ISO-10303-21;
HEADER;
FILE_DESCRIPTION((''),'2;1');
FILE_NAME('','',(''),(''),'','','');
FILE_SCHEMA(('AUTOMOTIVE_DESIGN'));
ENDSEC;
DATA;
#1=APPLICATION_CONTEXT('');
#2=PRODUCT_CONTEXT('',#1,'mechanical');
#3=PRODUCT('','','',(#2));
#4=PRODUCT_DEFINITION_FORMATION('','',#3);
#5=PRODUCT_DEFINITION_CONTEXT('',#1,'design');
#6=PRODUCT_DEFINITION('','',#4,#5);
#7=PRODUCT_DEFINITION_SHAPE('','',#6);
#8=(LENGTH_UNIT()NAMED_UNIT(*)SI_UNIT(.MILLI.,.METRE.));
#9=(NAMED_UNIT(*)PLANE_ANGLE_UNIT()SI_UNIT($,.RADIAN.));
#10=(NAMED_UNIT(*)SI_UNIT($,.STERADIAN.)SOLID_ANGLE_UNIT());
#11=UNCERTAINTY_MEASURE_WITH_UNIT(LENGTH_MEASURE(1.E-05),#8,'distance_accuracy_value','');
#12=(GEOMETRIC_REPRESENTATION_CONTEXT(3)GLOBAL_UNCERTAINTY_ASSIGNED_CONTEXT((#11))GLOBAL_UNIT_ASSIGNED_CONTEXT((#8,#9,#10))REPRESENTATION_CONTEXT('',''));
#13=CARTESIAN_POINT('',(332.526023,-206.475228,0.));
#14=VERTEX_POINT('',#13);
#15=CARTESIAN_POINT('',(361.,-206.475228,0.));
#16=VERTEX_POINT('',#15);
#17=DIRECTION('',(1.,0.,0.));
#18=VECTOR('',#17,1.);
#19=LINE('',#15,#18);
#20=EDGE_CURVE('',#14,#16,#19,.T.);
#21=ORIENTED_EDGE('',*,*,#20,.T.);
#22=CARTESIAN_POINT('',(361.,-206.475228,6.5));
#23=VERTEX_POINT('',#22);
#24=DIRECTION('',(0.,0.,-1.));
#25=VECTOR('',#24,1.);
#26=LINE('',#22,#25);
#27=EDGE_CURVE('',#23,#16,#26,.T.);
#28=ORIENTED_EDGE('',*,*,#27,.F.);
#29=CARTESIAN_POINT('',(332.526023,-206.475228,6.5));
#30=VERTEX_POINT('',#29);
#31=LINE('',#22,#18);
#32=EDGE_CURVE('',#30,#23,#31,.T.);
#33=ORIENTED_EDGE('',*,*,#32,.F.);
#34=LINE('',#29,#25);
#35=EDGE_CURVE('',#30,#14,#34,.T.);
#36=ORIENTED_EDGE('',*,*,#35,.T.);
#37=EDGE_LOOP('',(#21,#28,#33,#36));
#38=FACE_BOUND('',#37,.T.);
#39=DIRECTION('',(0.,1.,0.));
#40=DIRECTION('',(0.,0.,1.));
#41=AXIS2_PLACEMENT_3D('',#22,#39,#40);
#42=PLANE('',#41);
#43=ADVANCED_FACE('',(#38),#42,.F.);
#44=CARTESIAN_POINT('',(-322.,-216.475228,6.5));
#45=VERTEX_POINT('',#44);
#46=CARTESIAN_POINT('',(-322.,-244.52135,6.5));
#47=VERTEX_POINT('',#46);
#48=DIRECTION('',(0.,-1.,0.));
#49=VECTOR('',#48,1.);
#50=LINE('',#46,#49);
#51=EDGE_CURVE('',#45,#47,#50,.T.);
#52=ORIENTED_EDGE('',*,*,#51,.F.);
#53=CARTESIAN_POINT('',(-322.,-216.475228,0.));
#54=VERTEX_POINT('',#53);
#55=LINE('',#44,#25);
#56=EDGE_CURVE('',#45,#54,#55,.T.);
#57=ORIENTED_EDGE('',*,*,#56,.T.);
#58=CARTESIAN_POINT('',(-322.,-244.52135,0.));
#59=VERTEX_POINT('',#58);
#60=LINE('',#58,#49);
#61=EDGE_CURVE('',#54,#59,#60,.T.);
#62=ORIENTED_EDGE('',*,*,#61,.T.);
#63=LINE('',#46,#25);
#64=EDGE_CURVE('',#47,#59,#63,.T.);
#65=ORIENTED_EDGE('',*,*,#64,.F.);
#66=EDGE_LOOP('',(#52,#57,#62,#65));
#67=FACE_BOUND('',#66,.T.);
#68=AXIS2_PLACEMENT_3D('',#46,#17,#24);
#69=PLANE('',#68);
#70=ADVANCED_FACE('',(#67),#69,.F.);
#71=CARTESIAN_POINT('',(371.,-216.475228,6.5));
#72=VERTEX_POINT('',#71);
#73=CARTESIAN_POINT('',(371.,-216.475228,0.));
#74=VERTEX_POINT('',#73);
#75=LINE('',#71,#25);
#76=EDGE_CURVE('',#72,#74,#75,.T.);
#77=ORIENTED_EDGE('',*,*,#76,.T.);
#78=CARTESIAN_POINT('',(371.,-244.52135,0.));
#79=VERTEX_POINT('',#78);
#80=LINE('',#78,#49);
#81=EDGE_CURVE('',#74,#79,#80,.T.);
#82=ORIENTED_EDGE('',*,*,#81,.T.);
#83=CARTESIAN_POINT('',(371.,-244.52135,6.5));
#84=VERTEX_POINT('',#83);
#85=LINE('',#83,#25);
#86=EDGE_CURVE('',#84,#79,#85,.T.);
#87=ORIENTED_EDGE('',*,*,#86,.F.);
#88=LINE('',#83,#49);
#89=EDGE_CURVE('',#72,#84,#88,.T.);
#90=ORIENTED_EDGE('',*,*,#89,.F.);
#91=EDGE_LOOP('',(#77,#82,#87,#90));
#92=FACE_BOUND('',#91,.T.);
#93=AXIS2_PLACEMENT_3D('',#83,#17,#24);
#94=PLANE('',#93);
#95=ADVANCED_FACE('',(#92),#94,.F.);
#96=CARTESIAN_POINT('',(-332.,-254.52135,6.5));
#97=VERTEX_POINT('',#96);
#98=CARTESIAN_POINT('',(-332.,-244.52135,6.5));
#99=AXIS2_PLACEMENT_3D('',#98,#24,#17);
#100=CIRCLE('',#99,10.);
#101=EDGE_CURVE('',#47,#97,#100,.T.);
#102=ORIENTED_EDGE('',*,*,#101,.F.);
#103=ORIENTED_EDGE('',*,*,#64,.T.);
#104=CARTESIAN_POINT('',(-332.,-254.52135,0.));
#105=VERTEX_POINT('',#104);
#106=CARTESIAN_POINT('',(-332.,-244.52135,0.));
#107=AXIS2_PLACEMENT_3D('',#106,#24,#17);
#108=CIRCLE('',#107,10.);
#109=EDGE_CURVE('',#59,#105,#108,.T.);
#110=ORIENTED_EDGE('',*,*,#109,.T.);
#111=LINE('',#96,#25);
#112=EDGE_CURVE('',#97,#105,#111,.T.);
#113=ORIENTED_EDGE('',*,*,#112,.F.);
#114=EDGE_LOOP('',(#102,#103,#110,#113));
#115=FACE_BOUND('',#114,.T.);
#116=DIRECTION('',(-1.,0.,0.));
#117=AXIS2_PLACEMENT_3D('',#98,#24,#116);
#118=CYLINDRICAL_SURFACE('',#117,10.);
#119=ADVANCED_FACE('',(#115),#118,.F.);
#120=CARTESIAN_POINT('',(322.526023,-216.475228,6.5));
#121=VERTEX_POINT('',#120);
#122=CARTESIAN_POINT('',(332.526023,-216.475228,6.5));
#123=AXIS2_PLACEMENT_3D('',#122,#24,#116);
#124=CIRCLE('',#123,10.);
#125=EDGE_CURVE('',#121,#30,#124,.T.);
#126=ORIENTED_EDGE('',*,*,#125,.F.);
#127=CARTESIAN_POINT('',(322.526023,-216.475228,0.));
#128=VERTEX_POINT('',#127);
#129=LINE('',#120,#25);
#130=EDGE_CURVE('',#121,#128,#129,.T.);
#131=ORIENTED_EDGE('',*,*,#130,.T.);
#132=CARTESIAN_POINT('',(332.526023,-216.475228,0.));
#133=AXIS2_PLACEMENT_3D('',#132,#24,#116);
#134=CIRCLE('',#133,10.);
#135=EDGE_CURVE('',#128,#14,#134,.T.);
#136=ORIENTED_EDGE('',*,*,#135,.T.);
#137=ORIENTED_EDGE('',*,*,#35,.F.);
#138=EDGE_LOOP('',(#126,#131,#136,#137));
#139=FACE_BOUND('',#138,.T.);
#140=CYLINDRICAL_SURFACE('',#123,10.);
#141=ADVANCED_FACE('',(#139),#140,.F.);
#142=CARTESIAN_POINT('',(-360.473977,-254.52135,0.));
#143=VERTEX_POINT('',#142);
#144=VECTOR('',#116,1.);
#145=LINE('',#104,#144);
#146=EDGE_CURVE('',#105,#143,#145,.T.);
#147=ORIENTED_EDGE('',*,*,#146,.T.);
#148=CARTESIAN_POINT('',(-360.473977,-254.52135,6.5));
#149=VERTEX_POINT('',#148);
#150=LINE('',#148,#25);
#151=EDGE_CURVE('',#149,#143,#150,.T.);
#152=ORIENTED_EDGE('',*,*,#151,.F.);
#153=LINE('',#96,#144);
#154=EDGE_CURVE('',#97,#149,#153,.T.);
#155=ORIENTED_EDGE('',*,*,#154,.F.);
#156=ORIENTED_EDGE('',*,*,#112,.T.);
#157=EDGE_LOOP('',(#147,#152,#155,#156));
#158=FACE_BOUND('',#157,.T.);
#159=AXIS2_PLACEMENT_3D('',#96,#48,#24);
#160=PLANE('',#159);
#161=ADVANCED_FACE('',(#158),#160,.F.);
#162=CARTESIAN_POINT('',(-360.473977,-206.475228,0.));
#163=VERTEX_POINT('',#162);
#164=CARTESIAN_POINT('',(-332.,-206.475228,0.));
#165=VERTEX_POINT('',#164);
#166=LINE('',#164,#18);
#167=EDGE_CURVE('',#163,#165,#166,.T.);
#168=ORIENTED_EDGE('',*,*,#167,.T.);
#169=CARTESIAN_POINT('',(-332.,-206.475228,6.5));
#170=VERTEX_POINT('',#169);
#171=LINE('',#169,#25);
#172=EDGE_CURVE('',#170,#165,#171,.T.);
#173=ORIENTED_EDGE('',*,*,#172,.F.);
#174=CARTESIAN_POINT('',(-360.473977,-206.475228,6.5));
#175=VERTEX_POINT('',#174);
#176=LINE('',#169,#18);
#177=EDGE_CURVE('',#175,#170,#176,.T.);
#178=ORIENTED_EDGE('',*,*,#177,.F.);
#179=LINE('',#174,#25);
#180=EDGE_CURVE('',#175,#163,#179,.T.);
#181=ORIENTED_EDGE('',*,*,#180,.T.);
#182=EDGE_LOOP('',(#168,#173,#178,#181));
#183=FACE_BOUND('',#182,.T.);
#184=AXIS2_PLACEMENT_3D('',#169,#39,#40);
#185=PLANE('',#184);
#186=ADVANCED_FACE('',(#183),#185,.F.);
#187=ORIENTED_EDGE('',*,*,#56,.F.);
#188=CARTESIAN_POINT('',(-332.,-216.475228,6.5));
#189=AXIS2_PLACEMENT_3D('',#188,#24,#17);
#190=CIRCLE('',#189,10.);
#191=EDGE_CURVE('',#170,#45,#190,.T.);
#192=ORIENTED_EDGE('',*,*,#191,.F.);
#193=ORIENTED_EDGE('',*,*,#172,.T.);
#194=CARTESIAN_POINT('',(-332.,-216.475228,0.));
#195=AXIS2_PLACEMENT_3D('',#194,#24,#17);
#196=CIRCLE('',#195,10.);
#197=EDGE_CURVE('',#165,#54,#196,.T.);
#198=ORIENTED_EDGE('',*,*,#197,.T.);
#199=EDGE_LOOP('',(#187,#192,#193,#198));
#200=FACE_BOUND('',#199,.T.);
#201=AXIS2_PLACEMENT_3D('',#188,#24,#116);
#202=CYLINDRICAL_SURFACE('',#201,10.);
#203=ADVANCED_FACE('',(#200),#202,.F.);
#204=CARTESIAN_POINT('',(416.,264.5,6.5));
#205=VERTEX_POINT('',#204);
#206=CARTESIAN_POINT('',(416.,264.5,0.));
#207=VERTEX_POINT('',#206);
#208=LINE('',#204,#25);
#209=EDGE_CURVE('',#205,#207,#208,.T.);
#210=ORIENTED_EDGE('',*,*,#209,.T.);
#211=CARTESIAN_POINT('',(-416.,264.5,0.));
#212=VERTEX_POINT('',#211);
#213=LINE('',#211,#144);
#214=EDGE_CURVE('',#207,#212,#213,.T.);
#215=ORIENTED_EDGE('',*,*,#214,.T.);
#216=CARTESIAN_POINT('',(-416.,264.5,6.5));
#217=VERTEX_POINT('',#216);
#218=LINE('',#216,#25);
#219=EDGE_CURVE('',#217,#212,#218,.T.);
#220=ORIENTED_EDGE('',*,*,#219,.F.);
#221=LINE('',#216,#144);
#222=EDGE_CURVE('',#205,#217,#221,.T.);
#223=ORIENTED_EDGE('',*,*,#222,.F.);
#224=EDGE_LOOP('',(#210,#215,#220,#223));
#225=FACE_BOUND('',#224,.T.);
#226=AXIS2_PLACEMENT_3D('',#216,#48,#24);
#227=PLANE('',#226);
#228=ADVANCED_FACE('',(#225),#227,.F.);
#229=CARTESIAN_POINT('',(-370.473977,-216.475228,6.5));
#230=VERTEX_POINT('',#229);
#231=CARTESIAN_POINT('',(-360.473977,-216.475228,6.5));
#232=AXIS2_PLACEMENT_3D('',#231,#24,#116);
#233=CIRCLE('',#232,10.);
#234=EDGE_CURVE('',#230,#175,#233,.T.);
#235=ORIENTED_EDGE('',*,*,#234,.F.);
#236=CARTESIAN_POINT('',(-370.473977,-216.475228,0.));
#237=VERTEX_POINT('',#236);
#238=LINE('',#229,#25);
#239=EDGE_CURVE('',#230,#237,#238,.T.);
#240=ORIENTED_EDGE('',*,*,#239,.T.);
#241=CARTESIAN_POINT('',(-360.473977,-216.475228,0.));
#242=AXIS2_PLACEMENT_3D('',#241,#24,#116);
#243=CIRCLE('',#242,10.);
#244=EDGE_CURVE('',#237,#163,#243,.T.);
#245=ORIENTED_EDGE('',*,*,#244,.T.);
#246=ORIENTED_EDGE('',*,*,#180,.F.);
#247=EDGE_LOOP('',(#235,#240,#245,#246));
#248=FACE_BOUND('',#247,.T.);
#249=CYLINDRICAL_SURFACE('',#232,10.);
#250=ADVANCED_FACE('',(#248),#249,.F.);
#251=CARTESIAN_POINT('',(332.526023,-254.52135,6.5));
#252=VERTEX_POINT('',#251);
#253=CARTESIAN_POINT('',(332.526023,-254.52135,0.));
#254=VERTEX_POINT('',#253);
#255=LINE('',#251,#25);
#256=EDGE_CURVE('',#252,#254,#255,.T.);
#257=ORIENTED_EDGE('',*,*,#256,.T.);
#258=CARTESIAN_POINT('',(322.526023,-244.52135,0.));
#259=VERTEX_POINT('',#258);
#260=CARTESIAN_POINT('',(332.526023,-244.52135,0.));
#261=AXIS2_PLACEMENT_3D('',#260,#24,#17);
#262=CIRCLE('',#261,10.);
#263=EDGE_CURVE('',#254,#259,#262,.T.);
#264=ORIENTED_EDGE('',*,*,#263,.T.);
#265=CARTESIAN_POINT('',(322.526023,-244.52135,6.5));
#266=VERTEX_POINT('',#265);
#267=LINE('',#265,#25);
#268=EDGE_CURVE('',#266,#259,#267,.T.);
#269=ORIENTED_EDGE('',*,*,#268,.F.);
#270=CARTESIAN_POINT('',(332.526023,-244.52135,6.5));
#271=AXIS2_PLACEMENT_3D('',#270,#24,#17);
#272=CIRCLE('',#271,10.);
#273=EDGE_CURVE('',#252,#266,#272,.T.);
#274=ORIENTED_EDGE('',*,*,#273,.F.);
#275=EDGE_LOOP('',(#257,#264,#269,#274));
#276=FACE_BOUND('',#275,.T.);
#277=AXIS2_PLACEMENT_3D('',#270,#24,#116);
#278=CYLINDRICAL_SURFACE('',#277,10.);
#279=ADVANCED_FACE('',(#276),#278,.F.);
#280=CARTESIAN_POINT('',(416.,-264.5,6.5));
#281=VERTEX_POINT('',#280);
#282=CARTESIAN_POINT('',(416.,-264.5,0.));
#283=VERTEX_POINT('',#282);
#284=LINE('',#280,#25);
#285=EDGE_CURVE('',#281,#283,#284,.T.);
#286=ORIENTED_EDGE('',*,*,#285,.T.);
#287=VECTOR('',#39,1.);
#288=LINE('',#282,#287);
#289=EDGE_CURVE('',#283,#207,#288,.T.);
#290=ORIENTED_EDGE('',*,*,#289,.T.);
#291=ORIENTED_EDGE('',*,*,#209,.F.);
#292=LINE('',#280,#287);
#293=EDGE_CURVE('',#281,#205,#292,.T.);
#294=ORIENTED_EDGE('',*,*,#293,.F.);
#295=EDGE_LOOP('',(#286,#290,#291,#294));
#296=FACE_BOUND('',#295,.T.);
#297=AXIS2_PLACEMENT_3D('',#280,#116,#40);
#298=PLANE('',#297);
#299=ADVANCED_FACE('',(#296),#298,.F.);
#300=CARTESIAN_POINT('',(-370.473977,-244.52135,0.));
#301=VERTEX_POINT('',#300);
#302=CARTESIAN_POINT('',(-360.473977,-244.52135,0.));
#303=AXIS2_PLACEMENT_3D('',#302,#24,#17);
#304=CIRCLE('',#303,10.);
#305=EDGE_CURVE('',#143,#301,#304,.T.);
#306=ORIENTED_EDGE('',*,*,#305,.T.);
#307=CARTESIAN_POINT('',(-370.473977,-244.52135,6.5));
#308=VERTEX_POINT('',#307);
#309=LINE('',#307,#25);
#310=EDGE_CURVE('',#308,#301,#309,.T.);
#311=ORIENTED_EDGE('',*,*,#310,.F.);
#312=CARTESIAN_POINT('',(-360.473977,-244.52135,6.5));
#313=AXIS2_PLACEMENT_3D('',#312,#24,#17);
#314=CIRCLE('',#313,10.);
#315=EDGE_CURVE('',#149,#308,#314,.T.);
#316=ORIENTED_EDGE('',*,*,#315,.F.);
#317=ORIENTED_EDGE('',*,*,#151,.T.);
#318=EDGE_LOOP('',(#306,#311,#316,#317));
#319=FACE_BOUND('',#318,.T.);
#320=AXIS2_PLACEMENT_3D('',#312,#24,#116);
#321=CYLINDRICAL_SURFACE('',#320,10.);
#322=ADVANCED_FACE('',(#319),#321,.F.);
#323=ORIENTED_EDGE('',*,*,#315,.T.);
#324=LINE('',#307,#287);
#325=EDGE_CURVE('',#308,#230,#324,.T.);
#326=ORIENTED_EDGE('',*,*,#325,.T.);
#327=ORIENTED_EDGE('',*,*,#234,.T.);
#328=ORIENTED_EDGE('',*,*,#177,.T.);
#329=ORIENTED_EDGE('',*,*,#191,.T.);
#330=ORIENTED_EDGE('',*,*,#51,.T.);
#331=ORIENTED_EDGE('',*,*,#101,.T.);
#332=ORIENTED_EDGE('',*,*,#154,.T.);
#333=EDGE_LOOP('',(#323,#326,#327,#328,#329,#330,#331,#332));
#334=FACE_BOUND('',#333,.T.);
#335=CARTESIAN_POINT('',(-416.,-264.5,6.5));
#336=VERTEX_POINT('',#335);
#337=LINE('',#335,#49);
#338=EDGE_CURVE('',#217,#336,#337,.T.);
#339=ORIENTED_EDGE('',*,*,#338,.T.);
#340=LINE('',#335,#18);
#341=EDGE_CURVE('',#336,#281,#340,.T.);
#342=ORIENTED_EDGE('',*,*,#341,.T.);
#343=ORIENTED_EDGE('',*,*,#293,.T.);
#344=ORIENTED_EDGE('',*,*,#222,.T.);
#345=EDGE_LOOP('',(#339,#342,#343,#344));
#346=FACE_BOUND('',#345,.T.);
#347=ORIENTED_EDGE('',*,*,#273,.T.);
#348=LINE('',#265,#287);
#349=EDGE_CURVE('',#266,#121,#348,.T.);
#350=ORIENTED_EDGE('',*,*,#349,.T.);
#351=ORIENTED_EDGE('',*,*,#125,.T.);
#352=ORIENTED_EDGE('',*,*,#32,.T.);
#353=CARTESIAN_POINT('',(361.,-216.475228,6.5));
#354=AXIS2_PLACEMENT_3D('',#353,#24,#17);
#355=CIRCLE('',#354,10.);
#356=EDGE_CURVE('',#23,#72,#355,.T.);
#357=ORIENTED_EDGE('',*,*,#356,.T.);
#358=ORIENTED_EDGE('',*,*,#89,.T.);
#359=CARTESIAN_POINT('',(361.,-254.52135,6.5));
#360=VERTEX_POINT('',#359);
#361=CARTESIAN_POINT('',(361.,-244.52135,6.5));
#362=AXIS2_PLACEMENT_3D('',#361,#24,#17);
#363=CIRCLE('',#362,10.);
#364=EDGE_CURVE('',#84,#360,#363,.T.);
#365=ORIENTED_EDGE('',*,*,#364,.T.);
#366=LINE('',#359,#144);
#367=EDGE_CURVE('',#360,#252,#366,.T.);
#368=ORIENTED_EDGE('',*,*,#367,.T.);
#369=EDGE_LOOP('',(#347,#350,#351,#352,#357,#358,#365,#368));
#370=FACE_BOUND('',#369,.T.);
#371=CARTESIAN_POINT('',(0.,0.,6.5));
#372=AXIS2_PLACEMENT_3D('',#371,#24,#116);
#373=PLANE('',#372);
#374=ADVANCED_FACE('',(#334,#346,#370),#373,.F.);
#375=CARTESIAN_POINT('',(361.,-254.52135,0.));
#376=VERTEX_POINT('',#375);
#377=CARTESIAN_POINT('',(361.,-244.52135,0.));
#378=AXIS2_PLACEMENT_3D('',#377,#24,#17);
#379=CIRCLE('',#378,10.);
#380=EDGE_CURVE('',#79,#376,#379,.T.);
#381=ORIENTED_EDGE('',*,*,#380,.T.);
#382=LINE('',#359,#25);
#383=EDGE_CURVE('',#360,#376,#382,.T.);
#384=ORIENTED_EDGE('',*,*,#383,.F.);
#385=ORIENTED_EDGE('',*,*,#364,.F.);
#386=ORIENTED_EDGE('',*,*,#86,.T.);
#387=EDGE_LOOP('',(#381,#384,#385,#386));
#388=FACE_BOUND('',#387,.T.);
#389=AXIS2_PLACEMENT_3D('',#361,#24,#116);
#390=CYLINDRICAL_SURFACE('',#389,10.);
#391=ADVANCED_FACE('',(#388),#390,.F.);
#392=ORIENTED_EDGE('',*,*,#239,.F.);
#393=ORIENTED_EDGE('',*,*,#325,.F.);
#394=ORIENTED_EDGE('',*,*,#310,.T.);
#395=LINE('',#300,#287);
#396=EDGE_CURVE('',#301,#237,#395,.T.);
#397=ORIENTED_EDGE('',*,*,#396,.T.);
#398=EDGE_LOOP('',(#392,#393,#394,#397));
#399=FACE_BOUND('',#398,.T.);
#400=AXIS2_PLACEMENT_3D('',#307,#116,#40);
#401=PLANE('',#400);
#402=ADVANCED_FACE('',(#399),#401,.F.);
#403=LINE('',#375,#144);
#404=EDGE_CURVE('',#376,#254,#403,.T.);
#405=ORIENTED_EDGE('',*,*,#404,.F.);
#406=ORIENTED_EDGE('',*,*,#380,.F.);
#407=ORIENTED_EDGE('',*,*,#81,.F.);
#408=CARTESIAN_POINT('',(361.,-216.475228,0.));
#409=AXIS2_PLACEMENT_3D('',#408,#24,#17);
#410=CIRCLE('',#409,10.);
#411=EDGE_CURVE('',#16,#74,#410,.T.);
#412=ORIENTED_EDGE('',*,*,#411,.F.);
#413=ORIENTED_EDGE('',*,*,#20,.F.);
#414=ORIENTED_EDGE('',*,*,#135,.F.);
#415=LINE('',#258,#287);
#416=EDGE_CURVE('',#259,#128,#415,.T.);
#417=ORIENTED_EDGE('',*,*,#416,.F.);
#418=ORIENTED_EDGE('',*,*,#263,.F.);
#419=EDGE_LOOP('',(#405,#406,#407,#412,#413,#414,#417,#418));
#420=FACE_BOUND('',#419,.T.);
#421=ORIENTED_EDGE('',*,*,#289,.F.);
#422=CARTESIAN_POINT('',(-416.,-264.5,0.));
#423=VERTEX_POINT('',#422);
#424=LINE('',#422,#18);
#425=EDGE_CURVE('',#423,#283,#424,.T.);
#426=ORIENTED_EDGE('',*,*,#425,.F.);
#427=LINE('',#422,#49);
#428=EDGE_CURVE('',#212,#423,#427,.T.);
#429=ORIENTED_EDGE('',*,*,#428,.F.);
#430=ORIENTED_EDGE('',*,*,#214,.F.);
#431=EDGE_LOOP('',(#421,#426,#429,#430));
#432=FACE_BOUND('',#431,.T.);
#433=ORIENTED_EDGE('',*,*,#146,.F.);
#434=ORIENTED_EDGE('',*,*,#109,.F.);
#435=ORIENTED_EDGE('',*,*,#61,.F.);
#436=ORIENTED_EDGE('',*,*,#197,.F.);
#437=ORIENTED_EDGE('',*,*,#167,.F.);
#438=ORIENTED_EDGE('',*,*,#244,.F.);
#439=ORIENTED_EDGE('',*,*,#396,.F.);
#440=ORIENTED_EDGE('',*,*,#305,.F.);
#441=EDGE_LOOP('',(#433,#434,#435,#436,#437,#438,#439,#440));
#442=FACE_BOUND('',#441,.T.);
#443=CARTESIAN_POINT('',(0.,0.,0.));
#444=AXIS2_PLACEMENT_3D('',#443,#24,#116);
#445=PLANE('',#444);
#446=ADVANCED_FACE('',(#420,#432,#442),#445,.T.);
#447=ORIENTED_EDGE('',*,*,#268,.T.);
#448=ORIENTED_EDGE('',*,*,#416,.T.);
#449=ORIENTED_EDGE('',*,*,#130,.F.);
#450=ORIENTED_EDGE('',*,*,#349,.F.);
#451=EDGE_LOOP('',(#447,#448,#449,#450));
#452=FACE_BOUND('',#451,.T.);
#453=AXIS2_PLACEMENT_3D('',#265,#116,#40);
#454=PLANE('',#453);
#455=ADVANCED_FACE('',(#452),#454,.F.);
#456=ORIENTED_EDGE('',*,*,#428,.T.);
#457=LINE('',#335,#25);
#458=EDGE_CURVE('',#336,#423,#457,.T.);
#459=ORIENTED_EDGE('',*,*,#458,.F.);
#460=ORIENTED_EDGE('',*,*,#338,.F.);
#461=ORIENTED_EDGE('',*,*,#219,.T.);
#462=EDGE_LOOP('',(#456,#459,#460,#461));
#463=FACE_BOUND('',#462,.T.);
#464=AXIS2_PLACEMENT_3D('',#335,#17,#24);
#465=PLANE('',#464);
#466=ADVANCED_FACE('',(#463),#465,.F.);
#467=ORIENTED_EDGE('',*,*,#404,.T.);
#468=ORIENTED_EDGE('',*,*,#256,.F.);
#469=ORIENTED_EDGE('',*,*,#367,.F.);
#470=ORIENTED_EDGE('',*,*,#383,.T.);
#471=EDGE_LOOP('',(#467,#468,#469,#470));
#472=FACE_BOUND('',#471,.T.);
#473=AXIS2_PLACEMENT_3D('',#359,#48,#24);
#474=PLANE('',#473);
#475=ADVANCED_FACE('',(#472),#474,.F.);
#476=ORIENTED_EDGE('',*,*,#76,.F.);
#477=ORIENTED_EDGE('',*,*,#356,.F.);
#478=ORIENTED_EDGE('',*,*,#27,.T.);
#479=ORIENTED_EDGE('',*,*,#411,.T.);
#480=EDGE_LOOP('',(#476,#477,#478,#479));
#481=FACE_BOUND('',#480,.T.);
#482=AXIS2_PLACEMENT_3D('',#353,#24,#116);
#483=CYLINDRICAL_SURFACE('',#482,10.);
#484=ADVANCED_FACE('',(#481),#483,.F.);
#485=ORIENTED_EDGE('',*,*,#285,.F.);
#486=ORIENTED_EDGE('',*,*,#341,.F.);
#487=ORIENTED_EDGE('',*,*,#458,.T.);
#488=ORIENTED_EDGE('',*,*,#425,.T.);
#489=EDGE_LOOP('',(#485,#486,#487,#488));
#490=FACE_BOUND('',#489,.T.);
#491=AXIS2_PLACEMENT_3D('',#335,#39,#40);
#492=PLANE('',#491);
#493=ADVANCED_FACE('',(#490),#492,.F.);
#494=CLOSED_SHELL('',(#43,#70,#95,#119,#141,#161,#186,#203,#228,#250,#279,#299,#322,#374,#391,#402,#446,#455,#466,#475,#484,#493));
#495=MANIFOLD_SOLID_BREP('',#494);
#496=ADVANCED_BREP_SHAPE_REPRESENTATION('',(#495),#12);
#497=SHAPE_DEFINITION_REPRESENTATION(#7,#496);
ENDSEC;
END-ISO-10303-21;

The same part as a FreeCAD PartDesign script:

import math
import FreeCAD as App
import Part
import Sketcher

V = App.Vector

doc = App.newDocument("Part")
body = doc.addObject("PartDesign::Body", "Body")

# Sketch on XY plane
sketch1 = body.newObject("Sketcher::SketchObject", "Sketch")
sketch1.AttachmentSupport = (doc.getObject("XY_Plane"), [""])
sketch1.MapMode = "FlatFace"
sketch1.addGeometry([
    Part.LineSegment(V(-416, 264, 0), V(-416, -264, 0)),
    Part.LineSegment(V(-416, -264, 0), V(416, -264, 0)),
    Part.LineSegment(V(416, -264, 0), V(416, 264, 0)),
    Part.LineSegment(V(416, 264, 0), V(-416, 264, 0)),
], False)
sketch1.addConstraint([
    Sketcher.Constraint("Coincident", 0, 2, 1, 1),
    Sketcher.Constraint("Coincident", 1, 2, 2, 1),
    Sketcher.Constraint("Coincident", 2, 2, 3, 1),
    Sketcher.Constraint("Coincident", 3, 2, 0, 1),
    Sketcher.Constraint("Vertical", 0),
    Sketcher.Constraint("Horizontal", 1),
    Sketcher.Constraint("Vertical", 2),
    Sketcher.Constraint("Horizontal", 3),
    Sketcher.Constraint("Symmetric", 0, 2, 2, 2, -1, 1),
    Sketcher.Constraint("DistanceX", 1, 1, 1, 2, 832.0),
    Sketcher.Constraint("DistanceY", 0, 2, 0, 1, 529.0),
])
pad1 = body.newObject("PartDesign::Pad", "Pad")
pad1.Profile = sketch1
pad1.Length = 6.5

# Sketch on XY plane
sketch2 = body.newObject("Sketcher::SketchObject", "Sketch001")
sketch2.AttachmentSupport = (doc.getObject("XY_Plane"), [""])
sketch2.MapMode = "FlatFace"
sketch2.addGeometry([
    Part.LineSegment(V(361, -255, 0), V(333, -255, 0)),  # 0
    Part.ArcOfCircle(Part.Circle(V(333, -245, 0), V(0, 0, 1), 10), math.radians(-180), math.radians(-90)),  # 1
    Part.LineSegment(V(323, -245, 0), V(323, -216, 0)),  # 2
    Part.ArcOfCircle(Part.Circle(V(333, -216, 0), V(0, 0, 1), 10), math.radians(90), math.radians(180)),  # 3
    Part.LineSegment(V(333, -206, 0), V(361, -206, 0)),  # 4
    Part.ArcOfCircle(Part.Circle(V(361, -216, 0), V(0, 0, 1), 10), math.radians(0), math.radians(90)),  # 5
    Part.LineSegment(V(371, -216, 0), V(371, -245, 0)),  # 6
    Part.ArcOfCircle(Part.Circle(V(361, -245, 0), V(0, 0, 1), 10), math.radians(-90), math.radians(0)),  # 7
], False)
sketch2.addConstraint([
    Sketcher.Constraint("Tangent", 0, 2, 1, 2),
    Sketcher.Constraint("Tangent", 1, 1, 2, 1),
    Sketcher.Constraint("Tangent", 2, 2, 3, 2),
    Sketcher.Constraint("Tangent", 3, 1, 4, 1),
    Sketcher.Constraint("Tangent", 4, 2, 5, 2),
    Sketcher.Constraint("Tangent", 5, 1, 6, 1),
    Sketcher.Constraint("Tangent", 6, 2, 7, 2),
    Sketcher.Constraint("Tangent", 7, 1, 0, 1),
    Sketcher.Constraint("Horizontal", 0),
    Sketcher.Constraint("Vertical", 2),
    Sketcher.Constraint("Horizontal", 4),
    Sketcher.Constraint("Vertical", 6),
    Sketcher.Constraint("Equal", 1, 3),
    Sketcher.Constraint("Equal", 3, 5),
    Sketcher.Constraint("Equal", 5, 7),
    Sketcher.Constraint("Radius", 1, 10.0),
    Sketcher.Constraint("DistanceX", -1, 1, 5, 3, 361.0),
    Sketcher.Constraint("DistanceY", 2, 1, 2, 2, 28.046122),
    Sketcher.Constraint("DistanceX", 0, 2, 0, 1, 28.473977),
    Sketcher.Constraint("DistanceY", 1, 3, -1, 1, 244.52135),
])
pocket1 = body.newObject("PartDesign::Pocket", "Pocket")
pocket1.Profile = sketch2
pocket1.Type = "ThroughAll"
pocket1.Reversed = True
doc.recompute()

linearpattern = body.newObject("PartDesign::LinearPattern", "LinearPattern")
linearpattern.Originals = [pocket1]
linearpattern.Direction = (doc.getObject("X_Axis"), [""])
linearpattern.Mode = "offset"
linearpattern.Offset = 693
linearpattern.Occurrences = 2
linearpattern.Reversed = True
body.Tip = linearpattern

doc.recompute()
